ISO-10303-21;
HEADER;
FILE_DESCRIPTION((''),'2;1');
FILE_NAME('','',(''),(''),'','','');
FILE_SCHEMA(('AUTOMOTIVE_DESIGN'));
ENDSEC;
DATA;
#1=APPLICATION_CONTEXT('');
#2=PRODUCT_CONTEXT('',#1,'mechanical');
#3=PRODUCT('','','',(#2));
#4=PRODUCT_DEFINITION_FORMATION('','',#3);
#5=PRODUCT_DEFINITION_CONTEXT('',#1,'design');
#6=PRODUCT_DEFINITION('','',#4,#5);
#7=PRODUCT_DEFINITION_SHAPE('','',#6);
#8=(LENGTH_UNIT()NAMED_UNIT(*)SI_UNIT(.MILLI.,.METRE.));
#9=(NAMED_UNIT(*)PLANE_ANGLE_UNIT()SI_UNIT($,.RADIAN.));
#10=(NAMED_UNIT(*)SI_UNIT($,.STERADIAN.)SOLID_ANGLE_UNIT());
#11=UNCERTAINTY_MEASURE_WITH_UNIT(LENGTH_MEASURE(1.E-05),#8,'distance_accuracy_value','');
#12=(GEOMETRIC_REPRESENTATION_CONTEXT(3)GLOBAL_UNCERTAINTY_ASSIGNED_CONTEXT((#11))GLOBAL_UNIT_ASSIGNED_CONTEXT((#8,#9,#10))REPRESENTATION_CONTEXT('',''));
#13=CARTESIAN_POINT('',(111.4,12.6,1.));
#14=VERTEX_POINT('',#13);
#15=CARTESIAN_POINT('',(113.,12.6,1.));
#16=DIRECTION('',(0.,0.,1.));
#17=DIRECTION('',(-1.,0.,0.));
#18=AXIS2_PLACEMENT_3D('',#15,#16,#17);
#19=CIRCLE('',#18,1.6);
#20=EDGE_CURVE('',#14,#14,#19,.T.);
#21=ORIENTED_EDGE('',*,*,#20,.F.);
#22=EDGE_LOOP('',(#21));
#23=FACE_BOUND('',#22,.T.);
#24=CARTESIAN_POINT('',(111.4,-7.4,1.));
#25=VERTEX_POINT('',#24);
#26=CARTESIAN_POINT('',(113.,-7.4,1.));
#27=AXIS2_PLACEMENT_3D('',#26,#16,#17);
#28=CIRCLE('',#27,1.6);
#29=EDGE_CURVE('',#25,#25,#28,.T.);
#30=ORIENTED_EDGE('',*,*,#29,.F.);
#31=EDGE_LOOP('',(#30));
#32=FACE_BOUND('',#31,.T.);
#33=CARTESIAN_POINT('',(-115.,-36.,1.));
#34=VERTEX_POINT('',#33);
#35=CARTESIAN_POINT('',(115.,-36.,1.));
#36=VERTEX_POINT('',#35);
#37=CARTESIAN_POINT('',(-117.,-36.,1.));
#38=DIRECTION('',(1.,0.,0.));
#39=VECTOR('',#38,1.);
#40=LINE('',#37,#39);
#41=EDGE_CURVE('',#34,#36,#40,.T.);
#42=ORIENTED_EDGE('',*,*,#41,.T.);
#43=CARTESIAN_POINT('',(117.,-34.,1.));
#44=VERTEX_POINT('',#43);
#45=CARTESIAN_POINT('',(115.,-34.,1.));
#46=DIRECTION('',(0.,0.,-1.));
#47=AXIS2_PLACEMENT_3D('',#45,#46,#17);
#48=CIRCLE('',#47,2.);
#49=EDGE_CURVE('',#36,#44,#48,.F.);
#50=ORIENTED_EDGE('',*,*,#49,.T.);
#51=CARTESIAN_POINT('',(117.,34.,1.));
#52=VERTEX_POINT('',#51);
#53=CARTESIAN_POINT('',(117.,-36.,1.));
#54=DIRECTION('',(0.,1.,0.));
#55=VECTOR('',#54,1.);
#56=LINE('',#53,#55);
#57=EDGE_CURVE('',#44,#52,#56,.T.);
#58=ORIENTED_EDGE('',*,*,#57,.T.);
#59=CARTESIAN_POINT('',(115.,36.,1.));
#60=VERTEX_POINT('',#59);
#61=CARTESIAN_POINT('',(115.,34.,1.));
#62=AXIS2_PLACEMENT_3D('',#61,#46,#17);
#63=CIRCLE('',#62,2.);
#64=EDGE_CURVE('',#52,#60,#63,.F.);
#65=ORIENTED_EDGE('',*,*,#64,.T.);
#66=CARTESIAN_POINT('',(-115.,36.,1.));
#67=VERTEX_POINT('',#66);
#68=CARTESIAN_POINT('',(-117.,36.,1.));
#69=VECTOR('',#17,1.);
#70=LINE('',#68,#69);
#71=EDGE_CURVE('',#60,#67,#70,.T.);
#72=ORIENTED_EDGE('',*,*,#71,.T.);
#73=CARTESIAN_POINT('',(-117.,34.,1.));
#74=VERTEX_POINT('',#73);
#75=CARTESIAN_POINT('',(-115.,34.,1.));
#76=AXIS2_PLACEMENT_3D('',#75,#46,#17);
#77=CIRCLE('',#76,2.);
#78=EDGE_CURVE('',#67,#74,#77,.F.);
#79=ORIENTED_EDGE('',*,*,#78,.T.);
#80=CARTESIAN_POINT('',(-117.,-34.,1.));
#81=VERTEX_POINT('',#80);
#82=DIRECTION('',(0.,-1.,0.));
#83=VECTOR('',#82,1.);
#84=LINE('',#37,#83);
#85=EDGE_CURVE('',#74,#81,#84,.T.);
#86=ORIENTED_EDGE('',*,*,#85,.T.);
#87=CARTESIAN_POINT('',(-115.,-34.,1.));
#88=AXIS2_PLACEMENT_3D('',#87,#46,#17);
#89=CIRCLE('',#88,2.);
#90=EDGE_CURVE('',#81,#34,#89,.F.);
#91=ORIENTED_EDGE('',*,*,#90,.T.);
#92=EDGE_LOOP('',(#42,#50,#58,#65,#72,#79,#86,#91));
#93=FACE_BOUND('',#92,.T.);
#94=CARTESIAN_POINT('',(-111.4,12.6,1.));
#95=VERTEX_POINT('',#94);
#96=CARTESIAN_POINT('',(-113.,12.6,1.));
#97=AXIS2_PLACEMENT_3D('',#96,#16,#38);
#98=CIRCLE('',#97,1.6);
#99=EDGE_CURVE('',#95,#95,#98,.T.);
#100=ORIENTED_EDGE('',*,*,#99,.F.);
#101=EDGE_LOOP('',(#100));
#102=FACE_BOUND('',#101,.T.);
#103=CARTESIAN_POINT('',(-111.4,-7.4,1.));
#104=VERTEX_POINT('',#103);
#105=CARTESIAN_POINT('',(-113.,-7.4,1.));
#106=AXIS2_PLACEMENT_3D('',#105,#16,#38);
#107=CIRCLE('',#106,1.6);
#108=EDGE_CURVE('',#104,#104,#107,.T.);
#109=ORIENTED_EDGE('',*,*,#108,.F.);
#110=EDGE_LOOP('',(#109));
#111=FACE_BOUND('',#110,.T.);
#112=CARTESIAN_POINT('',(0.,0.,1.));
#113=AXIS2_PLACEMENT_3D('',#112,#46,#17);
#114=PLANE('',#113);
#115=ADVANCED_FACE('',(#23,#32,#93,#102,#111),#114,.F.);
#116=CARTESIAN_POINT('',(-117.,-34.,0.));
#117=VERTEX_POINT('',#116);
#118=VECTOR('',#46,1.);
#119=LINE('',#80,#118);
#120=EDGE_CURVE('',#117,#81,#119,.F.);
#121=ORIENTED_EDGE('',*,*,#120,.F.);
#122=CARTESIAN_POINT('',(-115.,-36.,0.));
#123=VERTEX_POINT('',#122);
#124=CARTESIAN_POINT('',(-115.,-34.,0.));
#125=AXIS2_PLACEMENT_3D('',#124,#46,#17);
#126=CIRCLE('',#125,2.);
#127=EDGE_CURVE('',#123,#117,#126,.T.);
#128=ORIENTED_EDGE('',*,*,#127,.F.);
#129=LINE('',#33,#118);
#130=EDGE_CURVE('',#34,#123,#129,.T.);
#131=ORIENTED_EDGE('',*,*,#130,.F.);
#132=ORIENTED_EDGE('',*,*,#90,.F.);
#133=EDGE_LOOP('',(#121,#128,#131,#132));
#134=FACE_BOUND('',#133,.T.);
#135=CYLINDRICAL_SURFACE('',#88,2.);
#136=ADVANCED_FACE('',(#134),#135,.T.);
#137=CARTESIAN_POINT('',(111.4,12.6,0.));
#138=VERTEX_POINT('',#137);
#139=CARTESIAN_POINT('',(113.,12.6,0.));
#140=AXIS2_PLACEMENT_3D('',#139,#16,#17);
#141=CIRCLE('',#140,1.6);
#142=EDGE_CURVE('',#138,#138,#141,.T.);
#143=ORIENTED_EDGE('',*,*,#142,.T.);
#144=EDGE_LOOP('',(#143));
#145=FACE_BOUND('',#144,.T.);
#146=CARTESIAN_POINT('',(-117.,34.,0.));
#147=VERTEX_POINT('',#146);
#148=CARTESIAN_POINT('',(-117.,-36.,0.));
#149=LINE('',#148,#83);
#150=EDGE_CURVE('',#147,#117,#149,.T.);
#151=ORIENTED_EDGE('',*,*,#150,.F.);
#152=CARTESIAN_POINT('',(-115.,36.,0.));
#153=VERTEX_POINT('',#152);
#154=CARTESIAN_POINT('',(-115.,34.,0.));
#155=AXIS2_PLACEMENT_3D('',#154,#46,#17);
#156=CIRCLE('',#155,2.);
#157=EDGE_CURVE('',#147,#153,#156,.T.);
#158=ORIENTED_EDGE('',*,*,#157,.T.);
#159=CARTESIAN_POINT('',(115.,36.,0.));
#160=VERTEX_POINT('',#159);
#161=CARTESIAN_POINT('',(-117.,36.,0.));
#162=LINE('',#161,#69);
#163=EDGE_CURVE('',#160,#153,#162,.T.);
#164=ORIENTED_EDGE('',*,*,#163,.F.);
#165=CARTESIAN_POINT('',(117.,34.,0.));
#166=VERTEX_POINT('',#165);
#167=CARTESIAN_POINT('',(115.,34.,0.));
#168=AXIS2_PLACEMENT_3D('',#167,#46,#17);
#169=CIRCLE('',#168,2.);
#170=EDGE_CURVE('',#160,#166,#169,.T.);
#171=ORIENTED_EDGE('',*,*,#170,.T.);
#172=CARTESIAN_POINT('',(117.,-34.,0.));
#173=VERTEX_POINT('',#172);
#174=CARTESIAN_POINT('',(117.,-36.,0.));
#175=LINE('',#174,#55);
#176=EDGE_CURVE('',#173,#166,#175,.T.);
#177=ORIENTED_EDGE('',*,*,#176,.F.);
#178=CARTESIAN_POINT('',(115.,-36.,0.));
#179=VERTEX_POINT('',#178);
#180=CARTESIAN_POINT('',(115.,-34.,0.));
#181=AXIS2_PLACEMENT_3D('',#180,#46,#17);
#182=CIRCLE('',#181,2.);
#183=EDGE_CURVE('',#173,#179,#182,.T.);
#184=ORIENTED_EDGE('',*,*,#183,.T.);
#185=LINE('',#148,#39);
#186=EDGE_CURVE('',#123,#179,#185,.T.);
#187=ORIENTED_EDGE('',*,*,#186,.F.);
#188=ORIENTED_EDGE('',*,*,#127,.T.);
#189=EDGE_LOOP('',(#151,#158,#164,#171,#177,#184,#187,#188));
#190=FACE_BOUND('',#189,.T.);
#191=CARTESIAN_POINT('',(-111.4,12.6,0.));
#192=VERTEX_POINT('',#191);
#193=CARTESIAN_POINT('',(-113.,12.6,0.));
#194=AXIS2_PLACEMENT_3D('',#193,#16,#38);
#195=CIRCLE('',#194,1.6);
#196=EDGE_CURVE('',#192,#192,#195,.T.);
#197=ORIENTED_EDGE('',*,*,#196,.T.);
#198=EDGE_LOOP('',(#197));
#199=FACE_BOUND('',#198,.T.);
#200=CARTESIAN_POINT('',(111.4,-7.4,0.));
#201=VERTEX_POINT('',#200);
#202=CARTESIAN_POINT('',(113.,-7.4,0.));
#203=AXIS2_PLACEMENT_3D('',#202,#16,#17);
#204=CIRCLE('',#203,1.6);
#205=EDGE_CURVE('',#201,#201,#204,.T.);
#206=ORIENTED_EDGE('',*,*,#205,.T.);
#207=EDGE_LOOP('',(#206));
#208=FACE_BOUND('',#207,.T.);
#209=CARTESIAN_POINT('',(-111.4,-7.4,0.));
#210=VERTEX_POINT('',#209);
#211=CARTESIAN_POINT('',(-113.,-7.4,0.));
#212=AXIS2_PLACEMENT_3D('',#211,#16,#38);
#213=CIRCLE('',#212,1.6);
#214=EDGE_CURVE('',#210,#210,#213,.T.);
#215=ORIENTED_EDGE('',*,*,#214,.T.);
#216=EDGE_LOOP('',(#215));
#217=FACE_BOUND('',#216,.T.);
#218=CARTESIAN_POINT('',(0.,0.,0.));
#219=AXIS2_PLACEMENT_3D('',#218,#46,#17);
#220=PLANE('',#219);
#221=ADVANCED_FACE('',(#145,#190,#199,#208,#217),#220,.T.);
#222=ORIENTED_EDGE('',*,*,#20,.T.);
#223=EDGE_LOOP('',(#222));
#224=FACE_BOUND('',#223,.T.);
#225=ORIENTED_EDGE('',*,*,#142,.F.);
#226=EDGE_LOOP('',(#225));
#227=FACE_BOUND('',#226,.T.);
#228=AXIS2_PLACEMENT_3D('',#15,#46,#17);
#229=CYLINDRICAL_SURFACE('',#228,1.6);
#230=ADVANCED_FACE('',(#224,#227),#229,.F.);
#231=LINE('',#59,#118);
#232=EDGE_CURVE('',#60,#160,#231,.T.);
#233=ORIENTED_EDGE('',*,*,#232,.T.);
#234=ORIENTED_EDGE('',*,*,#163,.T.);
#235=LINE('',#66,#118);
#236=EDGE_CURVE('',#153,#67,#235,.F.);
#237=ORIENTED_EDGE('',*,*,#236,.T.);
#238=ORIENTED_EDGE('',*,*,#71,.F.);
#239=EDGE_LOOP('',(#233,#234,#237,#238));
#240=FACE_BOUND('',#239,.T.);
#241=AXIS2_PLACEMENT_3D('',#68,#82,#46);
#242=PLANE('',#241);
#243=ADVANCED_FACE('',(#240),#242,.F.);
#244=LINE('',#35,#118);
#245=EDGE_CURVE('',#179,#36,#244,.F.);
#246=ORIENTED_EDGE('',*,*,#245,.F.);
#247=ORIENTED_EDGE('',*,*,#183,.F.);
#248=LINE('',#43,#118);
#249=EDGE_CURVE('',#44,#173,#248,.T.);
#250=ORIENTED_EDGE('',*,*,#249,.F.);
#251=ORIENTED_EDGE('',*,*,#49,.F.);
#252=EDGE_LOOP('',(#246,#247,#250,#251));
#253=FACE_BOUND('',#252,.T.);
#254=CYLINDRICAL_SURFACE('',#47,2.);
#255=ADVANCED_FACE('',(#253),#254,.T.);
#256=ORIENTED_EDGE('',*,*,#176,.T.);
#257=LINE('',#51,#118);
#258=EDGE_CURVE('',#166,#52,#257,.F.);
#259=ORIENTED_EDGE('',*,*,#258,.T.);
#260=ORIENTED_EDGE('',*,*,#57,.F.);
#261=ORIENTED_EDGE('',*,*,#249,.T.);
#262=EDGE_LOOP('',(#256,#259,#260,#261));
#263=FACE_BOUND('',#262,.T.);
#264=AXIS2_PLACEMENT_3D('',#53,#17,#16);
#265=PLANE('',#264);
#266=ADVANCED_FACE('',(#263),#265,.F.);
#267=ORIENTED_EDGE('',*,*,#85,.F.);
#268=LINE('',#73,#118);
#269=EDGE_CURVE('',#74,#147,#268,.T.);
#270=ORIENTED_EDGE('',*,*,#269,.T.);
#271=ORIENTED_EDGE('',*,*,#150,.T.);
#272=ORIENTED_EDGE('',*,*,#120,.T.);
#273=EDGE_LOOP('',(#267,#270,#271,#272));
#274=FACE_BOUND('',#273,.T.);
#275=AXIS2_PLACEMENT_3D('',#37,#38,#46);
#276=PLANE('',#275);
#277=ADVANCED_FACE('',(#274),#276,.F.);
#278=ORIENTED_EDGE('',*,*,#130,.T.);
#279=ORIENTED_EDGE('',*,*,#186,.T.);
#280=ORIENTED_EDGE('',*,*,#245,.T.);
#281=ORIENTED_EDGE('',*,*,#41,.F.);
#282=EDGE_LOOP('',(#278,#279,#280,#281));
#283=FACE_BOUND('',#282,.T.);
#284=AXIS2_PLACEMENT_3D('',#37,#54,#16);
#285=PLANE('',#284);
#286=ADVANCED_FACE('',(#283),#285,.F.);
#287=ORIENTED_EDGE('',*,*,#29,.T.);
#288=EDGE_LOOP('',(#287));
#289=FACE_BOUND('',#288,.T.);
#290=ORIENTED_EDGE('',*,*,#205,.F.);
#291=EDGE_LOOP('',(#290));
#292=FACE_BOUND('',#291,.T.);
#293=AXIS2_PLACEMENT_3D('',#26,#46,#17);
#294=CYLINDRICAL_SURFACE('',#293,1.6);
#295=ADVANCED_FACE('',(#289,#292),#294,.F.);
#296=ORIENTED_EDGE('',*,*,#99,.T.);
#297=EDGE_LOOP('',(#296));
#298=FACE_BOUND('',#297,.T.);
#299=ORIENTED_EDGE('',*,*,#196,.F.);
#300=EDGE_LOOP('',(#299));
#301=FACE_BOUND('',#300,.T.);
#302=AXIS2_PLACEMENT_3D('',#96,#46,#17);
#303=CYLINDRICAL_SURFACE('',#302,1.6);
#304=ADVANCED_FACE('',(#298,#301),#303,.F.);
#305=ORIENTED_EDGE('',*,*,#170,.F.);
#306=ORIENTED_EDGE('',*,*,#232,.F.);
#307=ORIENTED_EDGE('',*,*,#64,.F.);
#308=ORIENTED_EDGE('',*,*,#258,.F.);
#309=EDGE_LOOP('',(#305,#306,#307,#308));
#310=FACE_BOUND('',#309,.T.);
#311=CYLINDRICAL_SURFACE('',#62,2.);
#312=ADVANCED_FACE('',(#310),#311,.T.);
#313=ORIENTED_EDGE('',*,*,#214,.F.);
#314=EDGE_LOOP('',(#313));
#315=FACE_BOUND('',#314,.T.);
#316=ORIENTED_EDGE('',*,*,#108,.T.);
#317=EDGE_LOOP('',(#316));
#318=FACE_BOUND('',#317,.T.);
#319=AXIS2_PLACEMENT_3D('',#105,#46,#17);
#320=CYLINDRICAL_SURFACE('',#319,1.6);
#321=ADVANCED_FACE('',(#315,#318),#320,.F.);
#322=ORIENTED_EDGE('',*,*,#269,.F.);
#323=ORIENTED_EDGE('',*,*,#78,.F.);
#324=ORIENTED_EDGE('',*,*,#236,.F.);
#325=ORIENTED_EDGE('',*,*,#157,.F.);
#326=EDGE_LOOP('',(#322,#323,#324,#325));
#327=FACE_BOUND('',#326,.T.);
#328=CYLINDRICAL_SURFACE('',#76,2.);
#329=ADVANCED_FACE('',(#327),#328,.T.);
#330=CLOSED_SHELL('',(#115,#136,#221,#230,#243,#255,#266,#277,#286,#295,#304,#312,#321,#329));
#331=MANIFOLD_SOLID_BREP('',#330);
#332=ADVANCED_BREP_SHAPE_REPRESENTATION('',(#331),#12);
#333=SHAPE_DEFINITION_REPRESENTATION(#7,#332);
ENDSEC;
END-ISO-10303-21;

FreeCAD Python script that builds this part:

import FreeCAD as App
import Part
import Sketcher
from FreeCAD import Vector
Q = App.Units.Quantity


def edges_at(feature, points):
    """Names of the edges that pass closest to the given points."""
    edges = feature.Shape.Edges
    near = lambda p: min(range(len(edges)), key=lambda i: edges[i].distToShape(Part.Vertex(*p))[0])
    return sorted({f"Edge{near(p) + 1}" for p in points})


def add_polygon(sketch, points):
    """Adds a closed chain of lines whose ends are joined by coincident constraints."""
    first, n = sketch.GeometryCount, len(points)
    for a, b in zip(points, points[1:] + points[:1]):
        sketch.addGeometry(Part.LineSegment(App.Vector(*a, 0), App.Vector(*b, 0)), False)
    for i in range(n):
        sketch.addConstraint(Sketcher.Constraint("Coincident", first + i, 2, first + (i + 1) % n, 1))

doc = App.newDocument("Part")
body = doc.addObject("PartDesign::Body", "Body")

sketch1 = body.newObject("Sketcher::SketchObject", "Sketch")
sketch1.AttachmentSupport = (doc.getObject("XY_Plane"), [""])
sketch1.MapMode = "FlatFace"
add_polygon(sketch1, [(-117, 36), (-117, -36), (117, -36), (117, 36)])
sketch1.addGeometry(Part.Circle(Vector(-113, -7.4, 0), Vector(0, 0, 1), 1.6), False)
sketch1.addGeometry(Part.Circle(Vector(113, -7.4, 0), Vector(0, 0, 1), 1.6), False)
sketch1.addGeometry(Part.Circle(Vector(-113, 12.6, 0), Vector(0, 0, 1), 1.6), False)
sketch1.addGeometry(Part.Circle(Vector(113, 12.6, 0), Vector(0, 0, 1), 1.6), False)
sketch1.addConstraint([
    Sketcher.Constraint("Vertical", 0),
    Sketcher.Constraint("Horizontal", 1),
    Sketcher.Constraint("Vertical", 2),
    Sketcher.Constraint("Horizontal", 3),
    Sketcher.Constraint("Equal", 4, 5),
    Sketcher.Constraint("Equal", 5, 6),
    Sketcher.Constraint("Equal", 6, 7),
    Sketcher.Constraint("Symmetric", 0, 2, 2, 2, -1, 1),
    Sketcher.Constraint("Symmetric", 4, 3, 5, 3, -2),
    Sketcher.Constraint("Symmetric", 6, 3, 7, 3, -2),
    Sketcher.Constraint("Vertical", 4, 3, 6, 3),
    Sketcher.Constraint("Diameter", 4, Q("3.2 mm")),
    Sketcher.Constraint("DistanceX", 1, 1, 1, 2, Q("234 mm")),
    Sketcher.Constraint("DistanceY", 0, 2, 0, 1, Q("72 mm")),
    Sketcher.Constraint("DistanceX", 4, 3, -1, 1, Q("113 mm")),
    Sketcher.Constraint("DistanceY", 4, 3, 6, 3, Q("20 mm")),
    Sketcher.Constraint("DistanceY", 4, 3, -1, 1, Q("7.4 mm")),
])
pad1 = body.newObject("PartDesign::Pad", "Pad")
pad1.Profile = sketch1
pad1.Length = 1
doc.recompute()

fillet = body.newObject("PartDesign::Fillet", "Fillet")
fillet.Base = (pad1, edges_at(pad1, [
    (117, -36, 0.5),
    (-117, -36, 0.5),
    (-117, 36, 0.5),
    (117, 36, 0.5),
]))
fillet.Radius = 2

doc.recompute()
